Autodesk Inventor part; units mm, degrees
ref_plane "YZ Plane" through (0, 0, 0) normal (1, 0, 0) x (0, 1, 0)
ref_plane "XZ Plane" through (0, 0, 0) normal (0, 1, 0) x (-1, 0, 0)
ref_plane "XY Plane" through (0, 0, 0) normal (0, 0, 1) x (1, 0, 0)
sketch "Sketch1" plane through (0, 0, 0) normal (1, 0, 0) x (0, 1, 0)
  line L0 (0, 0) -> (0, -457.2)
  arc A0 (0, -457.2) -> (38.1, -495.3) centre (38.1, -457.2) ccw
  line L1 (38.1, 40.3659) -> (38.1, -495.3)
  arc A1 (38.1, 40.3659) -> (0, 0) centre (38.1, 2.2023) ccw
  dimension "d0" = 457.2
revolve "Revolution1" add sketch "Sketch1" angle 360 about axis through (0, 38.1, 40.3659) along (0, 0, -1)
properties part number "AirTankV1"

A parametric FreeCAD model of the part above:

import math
import FreeCAD as App
import Part
import Sketcher

V = App.Vector
Q = App.Units.Quantity

doc = App.newDocument("Part")
body = doc.addObject("PartDesign::Body", "Body")

sketch1 = doc.addObject("Sketcher::SketchObject", "Sketch")
body.addObject(sketch1)
sketch1.AttachmentSupport = (doc.YZ_Plane, [""])
sketch1.MapMode = "FlatFace"
sketch1.addGeometry(Part.ArcOfCircle(Part.Circle(V(38.1, 2.2023, 0), V(0, 0, 1), 38.1636), math.radians(90), math.radians(183.308195)), False)
sketch1.addGeometry(Part.LineSegment(V(0, 0, 0), V(0, -457.2, 0)), False)
sketch1.addGeometry(Part.ArcOfCircle(Part.Circle(V(38.1, -457.2, 0), V(0, 0, 1), 38.1), math.radians(180), math.radians(270)), False)
sketch1.addGeometry(Part.LineSegment(V(38.1, -495.3, 0), V(38.1, 40.3659, 0)), False)
sketch1.addGeometry(Part.LineSegment(V(38.1, 40.3659, 0), V(38.1, -495.3, 0)), True)
sketch1.addConstraint(Sketcher.Constraint("Coincident", 0, 2, 1, 1))
sketch1.addConstraint(Sketcher.Constraint("Tangent", 1, 2, 2, 1))
sketch1.addConstraint(Sketcher.Constraint("Coincident", 2, 2, 3, 1))
sketch1.addConstraint(Sketcher.Constraint("Coincident", 3, 2, 0, 1))
sketch1.addConstraint(Sketcher.Constraint("Vertical", 1))
sketch1.addConstraint(Sketcher.Constraint("Vertical", 3))
sketch1.addConstraint(Sketcher.Constraint("Vertical", 4))
sketch1.addConstraint(Sketcher.Constraint("Coincident", 0, 2, -1, 1))
sketch1.addConstraint(Sketcher.Constraint("Coincident", 4, 1, 3, 2))
sketch1.addConstraint(Sketcher.Constraint("Vertical", 0, 3, 2, 3))
sketch1.addConstraint(Sketcher.Constraint("Vertical", 0, 3, 2, 2))
sketch1.addConstraint(Sketcher.Constraint("Equal", 3, 4))
sketch1.addConstraint(Sketcher.Constraint("DistanceY", 1, 2, 1, 1, Q("18 in")))
sketch1.addConstraint(Sketcher.Constraint("Radius", 2, Q("1.5 in")))
sketch1.addConstraint(Sketcher.Constraint("Radius", 0, Q("1.5025 in")))
revolution = doc.addObject("PartDesign::Revolution", "Revolution")
body.addObject(revolution)
revolution.Profile = sketch1
revolution.ReferenceAxis = (sketch1, ["Axis0"])
revolution.Angle = 360

doc.recompute()
